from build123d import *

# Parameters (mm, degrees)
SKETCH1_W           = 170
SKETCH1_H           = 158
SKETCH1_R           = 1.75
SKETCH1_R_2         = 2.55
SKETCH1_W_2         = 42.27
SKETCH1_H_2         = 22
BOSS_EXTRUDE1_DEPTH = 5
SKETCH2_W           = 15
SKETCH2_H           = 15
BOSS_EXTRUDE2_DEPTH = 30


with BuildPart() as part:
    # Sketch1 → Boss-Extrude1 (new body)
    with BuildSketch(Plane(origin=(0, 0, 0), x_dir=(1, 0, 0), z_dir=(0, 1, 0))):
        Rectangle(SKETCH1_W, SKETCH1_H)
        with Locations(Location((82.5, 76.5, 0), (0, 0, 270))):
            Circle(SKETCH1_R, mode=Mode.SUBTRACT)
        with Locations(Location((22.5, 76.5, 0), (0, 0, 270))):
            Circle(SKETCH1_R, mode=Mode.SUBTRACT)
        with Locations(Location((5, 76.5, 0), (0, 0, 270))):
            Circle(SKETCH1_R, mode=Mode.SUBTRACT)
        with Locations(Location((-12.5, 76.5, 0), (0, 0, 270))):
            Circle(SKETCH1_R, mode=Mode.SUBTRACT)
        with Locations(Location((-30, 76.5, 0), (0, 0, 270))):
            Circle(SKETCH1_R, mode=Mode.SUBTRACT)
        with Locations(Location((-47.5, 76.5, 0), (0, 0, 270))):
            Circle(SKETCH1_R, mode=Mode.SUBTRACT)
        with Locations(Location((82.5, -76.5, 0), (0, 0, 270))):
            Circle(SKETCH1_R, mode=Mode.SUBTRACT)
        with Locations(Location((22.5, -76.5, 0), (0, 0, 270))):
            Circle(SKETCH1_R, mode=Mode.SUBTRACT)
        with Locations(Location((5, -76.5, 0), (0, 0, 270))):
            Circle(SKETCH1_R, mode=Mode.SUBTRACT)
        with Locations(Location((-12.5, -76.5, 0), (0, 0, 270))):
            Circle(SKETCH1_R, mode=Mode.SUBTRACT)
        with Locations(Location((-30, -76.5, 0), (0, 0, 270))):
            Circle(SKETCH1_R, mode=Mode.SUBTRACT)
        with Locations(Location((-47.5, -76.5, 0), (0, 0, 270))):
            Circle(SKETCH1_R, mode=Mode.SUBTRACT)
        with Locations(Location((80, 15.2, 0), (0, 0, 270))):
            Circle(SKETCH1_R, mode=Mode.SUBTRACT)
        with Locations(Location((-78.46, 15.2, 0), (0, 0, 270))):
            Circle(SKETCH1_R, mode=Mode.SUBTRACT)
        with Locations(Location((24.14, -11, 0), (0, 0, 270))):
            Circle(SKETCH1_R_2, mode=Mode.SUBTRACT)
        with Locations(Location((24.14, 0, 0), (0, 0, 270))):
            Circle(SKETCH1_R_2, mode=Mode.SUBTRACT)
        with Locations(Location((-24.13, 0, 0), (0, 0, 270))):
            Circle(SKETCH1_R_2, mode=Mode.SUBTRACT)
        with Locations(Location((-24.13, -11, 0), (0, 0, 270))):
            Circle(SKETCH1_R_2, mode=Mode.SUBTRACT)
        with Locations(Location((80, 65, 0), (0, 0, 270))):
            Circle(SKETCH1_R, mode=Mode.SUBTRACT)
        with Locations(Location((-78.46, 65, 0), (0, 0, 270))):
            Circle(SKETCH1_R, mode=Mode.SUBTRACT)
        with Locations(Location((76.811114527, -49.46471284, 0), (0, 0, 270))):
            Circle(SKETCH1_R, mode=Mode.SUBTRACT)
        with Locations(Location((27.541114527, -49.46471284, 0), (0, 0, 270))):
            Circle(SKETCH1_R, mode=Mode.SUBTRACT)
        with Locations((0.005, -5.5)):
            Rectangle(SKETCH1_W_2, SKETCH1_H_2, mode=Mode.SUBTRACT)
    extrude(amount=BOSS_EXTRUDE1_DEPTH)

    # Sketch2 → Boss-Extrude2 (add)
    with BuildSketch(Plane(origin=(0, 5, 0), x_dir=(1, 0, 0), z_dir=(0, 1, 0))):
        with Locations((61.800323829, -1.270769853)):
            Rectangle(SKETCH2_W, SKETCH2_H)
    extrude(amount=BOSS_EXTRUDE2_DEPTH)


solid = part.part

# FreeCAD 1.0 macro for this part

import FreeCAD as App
import Part
import Sketcher
from FreeCAD import Vector
Q = App.Units.Quantity


def add_polygon(sketch, points):
    """Adds a closed chain of lines whose ends are joined by coincident constraints."""
    first, n = sketch.GeometryCount, len(points)
    for a, b in zip(points, points[1:] + points[:1]):
        sketch.addGeometry(Part.LineSegment(App.Vector(*a, 0), App.Vector(*b, 0)), False)
    for i in range(n):
        sketch.addConstraint(Sketcher.Constraint("Coincident", first + i, 2, first + (i + 1) % n, 1))

doc = App.newDocument("Part")
body = doc.addObject("PartDesign::Body", "Body")

# Sketch on XZ plane
sketch1 = doc.addObject("Sketcher::SketchObject", "Sketch")
body.addObject(sketch1)
sketch1.AttachmentSupport = (doc.XZ_Plane, [""])
sketch1.MapMode = "FlatFace"
add_polygon(sketch1, [(-85, -79), (-85, 79), (85, 79), (85, -79)])  # lines 0-3
sketch1.addGeometry(Part.Circle(Vector(-47.5, 76.5, 0), Vector(0, 0, 1), 1.8), False)  # 4
sketch1.addGeometry(Part.Circle(Vector(-30, 76.5, 0), Vector(0, 0, 1), 1.8), False)  # 5
sketch1.addGeometry(Part.Circle(Vector(-12.5, 76.5, 0), Vector(0, 0, 1), 1.8), False)  # 6
sketch1.addGeometry(Part.Circle(Vector(-24.1, 11, 0), Vector(0, 0, 1), 2.5), False)  # 7
add_polygon(sketch1, [(21.1, 16.5), (-21.1, 16.5), (-21.1, -5.5), (21.1, -5.5)])  # lines 8-11
sketch1.addGeometry(Part.Circle(Vector(5, 76.5, 0), Vector(0, 0, 1), 1.8), False)  # 12
sketch1.addGeometry(Part.Circle(Vector(22.5, 76.5, 0), Vector(0, 0, 1), 1.8), False)  # 13
sketch1.addGeometry(Part.Circle(Vector(27.5, 49.5, 0), Vector(0, 0, 1), 1.8), False)  # 14
sketch1.addGeometry(Part.Circle(Vector(82.5, 76.5, 0), Vector(0, 0, 1), 1.8), False)  # 15
sketch1.addGeometry(Part.Circle(Vector(76.8, 49.5, 0), Vector(0, 0, 1), 1.8), False)  # 16
sketch1.addGeometry(Part.Circle(Vector(24.1, 11, 0), Vector(0, 0, 1), 2.5), False)  # 17
sketch1.addGeometry(Part.Circle(Vector(-78.5, -15.2, 0), Vector(0, 0, 1), 1.8), False)  # 18
sketch1.addGeometry(Part.Circle(Vector(-24.1, 0, 0), Vector(0, 0, 1), 2.5), False)  # 19
sketch1.addGeometry(Part.Circle(Vector(-78.5, -65, 0), Vector(0, 0, 1), 1.8), False)  # 20
sketch1.addGeometry(Part.Circle(Vector(-47.5, -76.5, 0), Vector(0, 0, 1), 1.8), False)  # 21
sketch1.addGeometry(Part.Circle(Vector(-30, -76.5, 0), Vector(0, 0, 1), 1.8), False)  # 22
sketch1.addGeometry(Part.Circle(Vector(-12.5, -76.5, 0), Vector(0, 0, 1), 1.8), False)  # 23
sketch1.addGeometry(Part.Circle(Vector(24.1, 0, 0), Vector(0, 0, 1), 2.5), False)  # 24
sketch1.addGeometry(Part.Circle(Vector(80, -15.2, 0), Vector(0, 0, 1), 1.8), False)  # 25
sketch1.addGeometry(Part.Circle(Vector(5, -76.5, 0), Vector(0, 0, 1), 1.8), False)  # 26
sketch1.addGeometry(Part.Circle(Vector(22.5, -76.5, 0), Vector(0, 0, 1), 1.8), False)  # 27
sketch1.addGeometry(Part.Circle(Vector(80, -65, 0), Vector(0, 0, 1), 1.8), False)  # 28
sketch1.addGeometry(Part.Circle(Vector(82.5, -76.5, 0), Vector(0, 0, 1), 1.8), False)  # 29
sketch1.addConstraint([
    Sketcher.Constraint("Vertical", 0),
    Sketcher.Constraint("Horizontal", 1),
    Sketcher.Constraint("Vertical", 2),
    Sketcher.Constraint("Horizontal", 3),
    Sketcher.Constraint("Horizontal", 8),
    Sketcher.Constraint("Vertical", 9),
    Sketcher.Constraint("Horizontal", 10),
    Sketcher.Constraint("Vertical", 11),
    Sketcher.Constraint("Equal", 4, 5),
    Sketcher.Constraint("Equal", 5, 6),
    Sketcher.Constraint("Equal", 6, 12),
    Sketcher.Constraint("Equal", 12, 13),
    Sketcher.Constraint("Equal", 13, 14),
    Sketcher.Constraint("Equal", 14, 15),
    Sketcher.Constraint("Equal", 15, 16),
    Sketcher.Constraint("Equal", 7, 17),
    Sketcher.Constraint("Equal", 16, 18),
    Sketcher.Constraint("Equal", 17, 19),
    Sketcher.Constraint("Equal", 18, 20),
    Sketcher.Constraint("Equal", 20, 21),
    Sketcher.Constraint("Equal", 21, 22),
    Sketcher.Constraint("Equal", 22, 23),
    Sketcher.Constraint("Equal", 19, 24),
    Sketcher.Constraint("Equal", 23, 25),
    Sketcher.Constraint("Equal", 25, 26),
    Sketcher.Constraint("Equal", 26, 27),
    Sketcher.Constraint("Equal", 27, 28),
    Sketcher.Constraint("Equal", 28, 29),
    Sketcher.Constraint("Symmetric", 0, 2, 2, 2, -1, 1),
    Sketcher.Constraint("Symmetric", 4, 3, 21, 3, -1),
    Sketcher.Constraint("Symmetric", 5, 3, 22, 3, -1),
    Sketcher.Constraint("Symmetric", 6, 3, 23, 3, -1),
    Sketcher.Constraint("Symmetric", 12, 3, 26, 3, -1),
    Sketcher.Constraint("Symmetric", 13, 3, 27, 3, -1),
    Sketcher.Constraint("Symmetric", 15, 3, 29, 3, -1),
    Sketcher.Constraint("PointOnObject", 19, 3, -1),
    Sketcher.Constraint("PointOnObject", 24, 3, -1),
    Sketcher.Constraint("Horizontal", 4, 3, 5, 3),
    Sketcher.Constraint("Horizontal", 5, 3, 6, 3),
    Sketcher.Constraint("Horizontal", 6, 3, 12, 3),
    Sketcher.Constraint("Horizontal", 12, 3, 13, 3),
    Sketcher.Constraint("Horizontal", 13, 3, 15, 3),
    Sketcher.Constraint("Horizontal", 14, 3, 16, 3),
    Sketcher.Constraint("Horizontal", 7, 3, 17, 3),
    Sketcher.Constraint("Horizontal", 18, 3, 25, 3),
    Sketcher.Constraint("Horizontal", 20, 3, 28, 3),
    Sketcher.Constraint("Vertical", 7, 3, 19, 3),
    Sketcher.Constraint("Vertical", 18, 3, 20, 3),
    Sketcher.Constraint("Vertical", 17, 3, 24, 3),
    Sketcher.Constraint("Vertical", 25, 3, 28, 3),
    Sketcher.Constraint("Diameter", 4, Q("3.5 mm")),
    Sketcher.Constraint("Diameter", 7, Q("5.1 mm")),
    Sketcher.Constraint("DistanceX", 1, 1, 1, 2, Q("170 mm")),
    Sketcher.Constraint("DistanceY", 0, 1, 0, 2, Q("158 mm")),
    Sketcher.Constraint("DistanceY", 9, 2, 9, 1, Q("22 mm")),
    Sketcher.Constraint("DistanceX", 5, 3, -1, 1, Q("30 mm")),
    Sketcher.Constraint("DistanceY", -1, 1, 7, 3, Q("11 mm")),
    Sketcher.Constraint("DistanceX", -1, 1, 12, 3, Q("5 mm")),
    Sketcher.Constraint("DistanceY", 20, 3, -1, 1, Q("65 mm")),
    Sketcher.Constraint("DistanceX", -1, 1, 25, 3, Q("80 mm")),
    Sketcher.Constraint("DistanceX", 4, 3, 6, 3, Q("35 mm")),
    Sketcher.Constraint("DistanceX", 6, 3, 13, 3, Q("35 mm")),
    Sketcher.Constraint("DistanceX", 13, 3, 15, 3, Q("60 mm")),
    Sketcher.Constraint("DistanceX", 7, 3, 8, 2, Q("3 mm")),
    Sketcher.Constraint("DistanceX", 10, 2, 24, 3, Q("3 mm")),
    Sketcher.Constraint("DistanceX", 8, 2, 8, 1, Q("42.27 mm")),
    Sketcher.Constraint("DistanceX", 4, 3, -1, 1, Q("47.5 mm")),
    Sketcher.Constraint("DistanceY", -1, 1, 4, 3, Q("76.5 mm")),
    Sketcher.Constraint("DistanceY", 18, 3, -1, 1, Q("15.2 mm")),
    Sketcher.Constraint("DistanceY", -1, 1, 8, 2, Q("16.5 mm")),
    Sketcher.Constraint("DistanceX", 18, 3, 17, 3, Q("102.6 mm")),
    Sketcher.Constraint("DistanceX", 7, 3, -1, 1, Q("24.13 mm")),
    Sketcher.Constraint("DistanceX", 14, 3, 16, 3, Q("49.27 mm")),
    Sketcher.Constraint("DistanceX", -1, 1, 14, 3, Q("27.541115 mm")),
    Sketcher.Constraint("DistanceY", -1, 1, 14, 3, Q("49.464713 mm")),
])
pad1 = doc.addObject("PartDesign::Pad", "Pad")
body.addObject(pad1)
pad1.Profile = sketch1
pad1.Length = 5
pad1.Reversed = True

# Sketch on XZ plane
sketch2 = doc.addObject("Sketcher::SketchObject", "Sketch001")
body.addObject(sketch2)
sketch2.AttachmentSupport = (doc.XZ_Plane, [""])
sketch2.MapMode = "FlatFace"
sketch2.AttachmentOffset = App.Placement(Vector(0, 0, -5), App.Rotation())
add_polygon(sketch2, [(54, -6), (54, 9), (69, 9), (69, -6)])  # lines 0-3
sketch2.addConstraint([
    Sketcher.Constraint("Vertical", 0),
    Sketcher.Constraint("Horizontal", 1),
    Sketcher.Constraint("Vertical", 2),
    Sketcher.Constraint("Horizontal", 3),
    Sketcher.Constraint("Equal", 3, 0),
    Sketcher.Constraint("DistanceX", 1, 1, 1, 2, Q("15 mm")),
    Sketcher.Constraint("DistanceY", -1, 1, 0, 2, Q("8.77077 mm")),
    Sketcher.Constraint("DistanceX", -1, 1, 0, 2, Q("54.300324 mm")),
])
pad2 = doc.addObject("PartDesign::Pad", "Pad001")
body.addObject(pad2)
pad2.Profile = sketch2
pad2.Length = 30
pad2.Reversed = True

doc.recompute()
